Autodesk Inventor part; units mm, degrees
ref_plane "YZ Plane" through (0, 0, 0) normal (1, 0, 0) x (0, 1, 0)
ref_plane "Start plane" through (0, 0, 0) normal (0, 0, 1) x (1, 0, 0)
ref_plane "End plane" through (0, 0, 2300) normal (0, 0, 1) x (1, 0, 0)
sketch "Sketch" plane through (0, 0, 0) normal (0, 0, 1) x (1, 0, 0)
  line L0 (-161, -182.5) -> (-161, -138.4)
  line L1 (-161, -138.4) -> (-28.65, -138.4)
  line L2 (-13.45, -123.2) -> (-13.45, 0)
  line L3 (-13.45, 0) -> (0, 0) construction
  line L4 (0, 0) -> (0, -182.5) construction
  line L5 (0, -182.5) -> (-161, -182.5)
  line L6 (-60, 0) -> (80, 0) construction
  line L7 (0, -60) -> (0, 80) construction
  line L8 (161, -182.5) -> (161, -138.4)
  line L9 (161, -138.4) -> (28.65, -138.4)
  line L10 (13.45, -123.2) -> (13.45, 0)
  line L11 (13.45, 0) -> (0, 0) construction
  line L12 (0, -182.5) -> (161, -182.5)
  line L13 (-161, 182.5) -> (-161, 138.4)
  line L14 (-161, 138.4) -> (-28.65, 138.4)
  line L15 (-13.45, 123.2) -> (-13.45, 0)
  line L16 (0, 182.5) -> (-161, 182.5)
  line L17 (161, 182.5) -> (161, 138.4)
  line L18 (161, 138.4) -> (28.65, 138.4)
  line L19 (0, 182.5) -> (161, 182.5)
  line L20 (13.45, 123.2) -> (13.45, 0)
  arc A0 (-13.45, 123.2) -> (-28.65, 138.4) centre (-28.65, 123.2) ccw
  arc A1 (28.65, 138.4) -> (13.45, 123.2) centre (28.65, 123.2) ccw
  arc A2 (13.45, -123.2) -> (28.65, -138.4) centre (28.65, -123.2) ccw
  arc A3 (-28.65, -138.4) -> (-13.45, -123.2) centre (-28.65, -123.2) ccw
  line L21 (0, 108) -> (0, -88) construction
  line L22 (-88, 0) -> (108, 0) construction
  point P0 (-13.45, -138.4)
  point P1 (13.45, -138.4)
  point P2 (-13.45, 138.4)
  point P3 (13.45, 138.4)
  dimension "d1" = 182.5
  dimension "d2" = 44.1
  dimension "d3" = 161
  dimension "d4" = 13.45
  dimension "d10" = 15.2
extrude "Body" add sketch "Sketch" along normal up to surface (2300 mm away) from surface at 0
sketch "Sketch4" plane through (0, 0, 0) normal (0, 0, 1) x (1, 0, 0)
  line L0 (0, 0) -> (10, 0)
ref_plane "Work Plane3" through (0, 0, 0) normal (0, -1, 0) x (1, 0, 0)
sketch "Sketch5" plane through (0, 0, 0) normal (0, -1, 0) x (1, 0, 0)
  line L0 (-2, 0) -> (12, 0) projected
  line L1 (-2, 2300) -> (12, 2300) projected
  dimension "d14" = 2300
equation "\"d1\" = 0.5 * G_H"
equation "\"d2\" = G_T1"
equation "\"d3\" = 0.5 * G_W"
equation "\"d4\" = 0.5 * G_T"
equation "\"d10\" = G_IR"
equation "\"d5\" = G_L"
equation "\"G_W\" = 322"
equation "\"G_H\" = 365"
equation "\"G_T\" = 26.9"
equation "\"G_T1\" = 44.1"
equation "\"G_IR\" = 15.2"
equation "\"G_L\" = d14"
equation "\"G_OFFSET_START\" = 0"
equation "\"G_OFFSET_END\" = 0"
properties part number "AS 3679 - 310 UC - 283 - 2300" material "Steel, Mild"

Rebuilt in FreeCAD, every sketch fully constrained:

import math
import FreeCAD as App
import Part
import Sketcher
from FreeCAD import Vector
Q = App.Units.Quantity

doc = App.newDocument("Part")
body = doc.addObject("PartDesign::Body", "Body")

# Sketch on XY plane
sketch1 = body.newObject("Sketcher::SketchObject", "Sketch")
sketch1.AttachmentSupport = (doc.getObject("XY_Plane"), [""])
sketch1.MapMode = "FlatFace"
sketch1.addGeometry([
    Part.LineSegment(Vector(-161, -138.4, 0), Vector(-161, -182.5, 0)),  # 0
    Part.LineSegment(Vector(-161, -182.5, 0), Vector(161, -182.5, 0)),  # 1
    Part.LineSegment(Vector(161, -182.5, 0), Vector(161, -138.4, 0)),  # 2
    Part.LineSegment(Vector(161, -138.4, 0), Vector(28.65, -138.4, 0)),  # 3
    Part.ArcOfCircle(Part.Circle(Vector(28.65, -123.2, 0), Vector(0, 0, 1), 15.2), math.radians(180), math.radians(270)),  # 4
    Part.LineSegment(Vector(13.45, -123.2, 0), Vector(13.45, 123.2, 0)),  # 5
    Part.ArcOfCircle(Part.Circle(Vector(28.65, 123.2, 0), Vector(0, 0, 1), 15.2), math.radians(90), math.radians(180)),  # 6
    Part.LineSegment(Vector(28.65, 138.4, 0), Vector(161, 138.4, 0)),  # 7
    Part.LineSegment(Vector(161, 138.4, 0), Vector(161, 182.5, 0)),  # 8
    Part.LineSegment(Vector(161, 182.5, 0), Vector(-161, 182.5, 0)),  # 9
    Part.LineSegment(Vector(-161, 182.5, 0), Vector(-161, 138.4, 0)),  # 10
    Part.LineSegment(Vector(-161, 138.4, 0), Vector(-28.65, 138.4, 0)),  # 11
    Part.ArcOfCircle(Part.Circle(Vector(-28.65, 123.2, 0), Vector(0, 0, 1), 15.2), math.radians(0), math.radians(90)),  # 12
    Part.LineSegment(Vector(-13.45, 123.2, 0), Vector(-13.45, -123.2, 0)),  # 13
    Part.ArcOfCircle(Part.Circle(Vector(-28.65, -123.2, 0), Vector(0, 0, 1), 15.2), math.radians(-90), math.radians(0)),  # 14
    Part.LineSegment(Vector(-28.65, -138.4, 0), Vector(-161, -138.4, 0)),  # 15
], False)
sketch1.addConstraint([
    Sketcher.Constraint("Coincident", 0, 2, 1, 1),
    Sketcher.Constraint("Coincident", 1, 2, 2, 1),
    Sketcher.Constraint("Coincident", 2, 2, 3, 1),
    Sketcher.Constraint("Tangent", 3, 2, 4, 2),
    Sketcher.Constraint("Tangent", 4, 1, 5, 1),
    Sketcher.Constraint("Tangent", 5, 2, 6, 2),
    Sketcher.Constraint("Tangent", 6, 1, 7, 1),
    Sketcher.Constraint("Coincident", 7, 2, 8, 1),
    Sketcher.Constraint("Coincident", 8, 2, 9, 1),
    Sketcher.Constraint("Coincident", 9, 2, 10, 1),
    Sketcher.Constraint("Coincident", 10, 2, 11, 1),
    Sketcher.Constraint("Tangent", 11, 2, 12, 2),
    Sketcher.Constraint("Tangent", 12, 1, 13, 1),
    Sketcher.Constraint("Tangent", 13, 2, 14, 2),
    Sketcher.Constraint("Tangent", 14, 1, 15, 1),
    Sketcher.Constraint("Coincident", 15, 2, 0, 1),
    Sketcher.Constraint("Vertical", 0),
    Sketcher.Constraint("Horizontal", 1),
    Sketcher.Constraint("Vertical", 2),
    Sketcher.Constraint("Horizontal", 3),
    Sketcher.Constraint("Vertical", 5),
    Sketcher.Constraint("Horizontal", 7),
    Sketcher.Constraint("Vertical", 8),
    Sketcher.Constraint("Horizontal", 9),
    Sketcher.Constraint("Vertical", 10),
    Sketcher.Constraint("Horizontal", 11),
    Sketcher.Constraint("Vertical", 13),
    Sketcher.Constraint("Horizontal", 15),
    Sketcher.Constraint("Equal", 4, 6),
    Sketcher.Constraint("Equal", 6, 12),
    Sketcher.Constraint("Equal", 12, 14),
    Sketcher.Constraint("Symmetric", 4, 3, 12, 3, -1, 1),
    Sketcher.Constraint("Symmetric", 0, 2, 8, 2, -1, 1),
    Sketcher.Constraint("Symmetric", 7, 2, 10, 2, -2),
    Sketcher.Constraint("Symmetric", 2, 2, 15, 2, -2),
    Sketcher.Constraint("Radius", 4, Q("15.2 mm")),
    Sketcher.Constraint("DistanceY", 0, 2, 0, 1, Q("44.1 mm")),
    Sketcher.Constraint("DistanceX", 0, 2, -1, 1, Q("161 mm")),
    Sketcher.Constraint("DistanceY", 0, 2, -1, 1, Q("182.5 mm")),
    Sketcher.Constraint("DistanceX", -1, 1, 4, 1, Q("13.45 mm")),
])
pad1 = body.newObject("PartDesign::Pad", "Pad")
pad1.Profile = sketch1
pad1.Length = 2300

doc.recompute()
